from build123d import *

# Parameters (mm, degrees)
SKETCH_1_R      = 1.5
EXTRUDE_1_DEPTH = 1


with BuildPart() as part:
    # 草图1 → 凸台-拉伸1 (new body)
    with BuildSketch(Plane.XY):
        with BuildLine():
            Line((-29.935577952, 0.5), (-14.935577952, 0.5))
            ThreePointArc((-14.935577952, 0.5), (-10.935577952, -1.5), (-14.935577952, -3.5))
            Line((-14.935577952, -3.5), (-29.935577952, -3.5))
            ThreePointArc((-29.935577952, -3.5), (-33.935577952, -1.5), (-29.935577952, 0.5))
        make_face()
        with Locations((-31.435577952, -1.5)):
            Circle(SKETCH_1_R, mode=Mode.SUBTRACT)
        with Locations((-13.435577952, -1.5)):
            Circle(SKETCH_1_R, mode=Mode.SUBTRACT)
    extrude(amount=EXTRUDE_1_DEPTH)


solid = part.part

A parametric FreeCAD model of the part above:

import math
import FreeCAD as App
import Part
import Sketcher
from FreeCAD import Vector

doc = App.newDocument("Part")
params = doc.addObject("Spreadsheet::Sheet", "Params")
for row, (alias, value) in enumerate([
    ("sketch1_diameter", "3 mm"),
    ("sketch1_radius", "2.5 mm"),
    ("sketch1_width", "15 mm"),
    ("pad1_length", "1 mm"),
], start=1):
    params.set(f"A{row}", alias)
    params.set(f"B{row}", "=" + value)
    params.setAlias(f"B{row}", alias)

body = doc.addObject("PartDesign::Body", "Body")

# Sketch on XY plane
sketch1 = body.newObject("Sketcher::SketchObject", "Sketch")
sketch1.AttachmentSupport = (doc.getObject("XY_Plane"), [""])
sketch1.MapMode = "FlatFace"
sketch1.addGeometry([
    Part.LineSegment(Vector(-14.9, 0.5, 0), Vector(-29.9, 0.5, 0)),  # 0
    Part.ArcOfCircle(Part.Circle(Vector(-31.4, -1.5, 0), Vector(0, 0, 1), 2.5), math.radians(53), math.radians(307)),  # 1
    Part.LineSegment(Vector(-29.9, -3.5, 0), Vector(-14.9, -3.5, 0)),  # 2
    Part.ArcOfCircle(Part.Circle(Vector(-13.4, -1.5, 0), Vector(0, 0, 1), 2.5), math.radians(-127), math.radians(127)),  # 3
    Part.Circle(Vector(-13.4, -1.5, 0), Vector(0, 0, 1), 1.5),  # 4
    Part.Circle(Vector(-31.4, -1.5, 0), Vector(0, 0, 1), 1.5),  # 5
], False)
sketch1.addConstraint([
    Sketcher.Constraint("Coincident", 0, 2, 1, 1),
    Sketcher.Constraint("Coincident", 1, 2, 2, 1),
    Sketcher.Constraint("Coincident", 2, 2, 3, 1),
    Sketcher.Constraint("Coincident", 3, 2, 0, 1),
    Sketcher.Constraint("Horizontal", 0),
    Sketcher.Constraint("Horizontal", 2),
    Sketcher.Constraint("Coincident", 4, 3, 3, 3),
    Sketcher.Constraint("Coincident", 5, 3, 1, 3),
    Sketcher.Constraint("Equal", 1, 3),
    Sketcher.Constraint("Equal", 4, 5),
    Sketcher.Constraint("Horizontal", 1, 3, 3, 3),
    Sketcher.Constraint("Vertical", 0, 2, 1, 2),
    Sketcher.Constraint("Diameter", 4, 3.0),
    Sketcher.Constraint("Radius", 1, 2.5),
    Sketcher.Constraint("DistanceX", 0, 2, 0, 1, 15.0),
    Sketcher.Constraint("DistanceX", 1, 3, 3, 3, 18.0),
    Sketcher.Constraint("DistanceY", 1, 3, -1, 1, 1.5),
    Sketcher.Constraint("DistanceX", 1, 3, -1, 1, 31.435578),
])
sketch1.setExpression("Constraints[12]", "Params.sketch1_diameter")
sketch1.setExpression("Constraints[13]", "Params.sketch1_radius")
sketch1.setExpression("Constraints[14]", "Params.sketch1_width")
pad1 = body.newObject("PartDesign::Pad", "Pad")
pad1.Profile = sketch1
pad1.setExpression("Length", "Params.pad1_length")

doc.recompute()
